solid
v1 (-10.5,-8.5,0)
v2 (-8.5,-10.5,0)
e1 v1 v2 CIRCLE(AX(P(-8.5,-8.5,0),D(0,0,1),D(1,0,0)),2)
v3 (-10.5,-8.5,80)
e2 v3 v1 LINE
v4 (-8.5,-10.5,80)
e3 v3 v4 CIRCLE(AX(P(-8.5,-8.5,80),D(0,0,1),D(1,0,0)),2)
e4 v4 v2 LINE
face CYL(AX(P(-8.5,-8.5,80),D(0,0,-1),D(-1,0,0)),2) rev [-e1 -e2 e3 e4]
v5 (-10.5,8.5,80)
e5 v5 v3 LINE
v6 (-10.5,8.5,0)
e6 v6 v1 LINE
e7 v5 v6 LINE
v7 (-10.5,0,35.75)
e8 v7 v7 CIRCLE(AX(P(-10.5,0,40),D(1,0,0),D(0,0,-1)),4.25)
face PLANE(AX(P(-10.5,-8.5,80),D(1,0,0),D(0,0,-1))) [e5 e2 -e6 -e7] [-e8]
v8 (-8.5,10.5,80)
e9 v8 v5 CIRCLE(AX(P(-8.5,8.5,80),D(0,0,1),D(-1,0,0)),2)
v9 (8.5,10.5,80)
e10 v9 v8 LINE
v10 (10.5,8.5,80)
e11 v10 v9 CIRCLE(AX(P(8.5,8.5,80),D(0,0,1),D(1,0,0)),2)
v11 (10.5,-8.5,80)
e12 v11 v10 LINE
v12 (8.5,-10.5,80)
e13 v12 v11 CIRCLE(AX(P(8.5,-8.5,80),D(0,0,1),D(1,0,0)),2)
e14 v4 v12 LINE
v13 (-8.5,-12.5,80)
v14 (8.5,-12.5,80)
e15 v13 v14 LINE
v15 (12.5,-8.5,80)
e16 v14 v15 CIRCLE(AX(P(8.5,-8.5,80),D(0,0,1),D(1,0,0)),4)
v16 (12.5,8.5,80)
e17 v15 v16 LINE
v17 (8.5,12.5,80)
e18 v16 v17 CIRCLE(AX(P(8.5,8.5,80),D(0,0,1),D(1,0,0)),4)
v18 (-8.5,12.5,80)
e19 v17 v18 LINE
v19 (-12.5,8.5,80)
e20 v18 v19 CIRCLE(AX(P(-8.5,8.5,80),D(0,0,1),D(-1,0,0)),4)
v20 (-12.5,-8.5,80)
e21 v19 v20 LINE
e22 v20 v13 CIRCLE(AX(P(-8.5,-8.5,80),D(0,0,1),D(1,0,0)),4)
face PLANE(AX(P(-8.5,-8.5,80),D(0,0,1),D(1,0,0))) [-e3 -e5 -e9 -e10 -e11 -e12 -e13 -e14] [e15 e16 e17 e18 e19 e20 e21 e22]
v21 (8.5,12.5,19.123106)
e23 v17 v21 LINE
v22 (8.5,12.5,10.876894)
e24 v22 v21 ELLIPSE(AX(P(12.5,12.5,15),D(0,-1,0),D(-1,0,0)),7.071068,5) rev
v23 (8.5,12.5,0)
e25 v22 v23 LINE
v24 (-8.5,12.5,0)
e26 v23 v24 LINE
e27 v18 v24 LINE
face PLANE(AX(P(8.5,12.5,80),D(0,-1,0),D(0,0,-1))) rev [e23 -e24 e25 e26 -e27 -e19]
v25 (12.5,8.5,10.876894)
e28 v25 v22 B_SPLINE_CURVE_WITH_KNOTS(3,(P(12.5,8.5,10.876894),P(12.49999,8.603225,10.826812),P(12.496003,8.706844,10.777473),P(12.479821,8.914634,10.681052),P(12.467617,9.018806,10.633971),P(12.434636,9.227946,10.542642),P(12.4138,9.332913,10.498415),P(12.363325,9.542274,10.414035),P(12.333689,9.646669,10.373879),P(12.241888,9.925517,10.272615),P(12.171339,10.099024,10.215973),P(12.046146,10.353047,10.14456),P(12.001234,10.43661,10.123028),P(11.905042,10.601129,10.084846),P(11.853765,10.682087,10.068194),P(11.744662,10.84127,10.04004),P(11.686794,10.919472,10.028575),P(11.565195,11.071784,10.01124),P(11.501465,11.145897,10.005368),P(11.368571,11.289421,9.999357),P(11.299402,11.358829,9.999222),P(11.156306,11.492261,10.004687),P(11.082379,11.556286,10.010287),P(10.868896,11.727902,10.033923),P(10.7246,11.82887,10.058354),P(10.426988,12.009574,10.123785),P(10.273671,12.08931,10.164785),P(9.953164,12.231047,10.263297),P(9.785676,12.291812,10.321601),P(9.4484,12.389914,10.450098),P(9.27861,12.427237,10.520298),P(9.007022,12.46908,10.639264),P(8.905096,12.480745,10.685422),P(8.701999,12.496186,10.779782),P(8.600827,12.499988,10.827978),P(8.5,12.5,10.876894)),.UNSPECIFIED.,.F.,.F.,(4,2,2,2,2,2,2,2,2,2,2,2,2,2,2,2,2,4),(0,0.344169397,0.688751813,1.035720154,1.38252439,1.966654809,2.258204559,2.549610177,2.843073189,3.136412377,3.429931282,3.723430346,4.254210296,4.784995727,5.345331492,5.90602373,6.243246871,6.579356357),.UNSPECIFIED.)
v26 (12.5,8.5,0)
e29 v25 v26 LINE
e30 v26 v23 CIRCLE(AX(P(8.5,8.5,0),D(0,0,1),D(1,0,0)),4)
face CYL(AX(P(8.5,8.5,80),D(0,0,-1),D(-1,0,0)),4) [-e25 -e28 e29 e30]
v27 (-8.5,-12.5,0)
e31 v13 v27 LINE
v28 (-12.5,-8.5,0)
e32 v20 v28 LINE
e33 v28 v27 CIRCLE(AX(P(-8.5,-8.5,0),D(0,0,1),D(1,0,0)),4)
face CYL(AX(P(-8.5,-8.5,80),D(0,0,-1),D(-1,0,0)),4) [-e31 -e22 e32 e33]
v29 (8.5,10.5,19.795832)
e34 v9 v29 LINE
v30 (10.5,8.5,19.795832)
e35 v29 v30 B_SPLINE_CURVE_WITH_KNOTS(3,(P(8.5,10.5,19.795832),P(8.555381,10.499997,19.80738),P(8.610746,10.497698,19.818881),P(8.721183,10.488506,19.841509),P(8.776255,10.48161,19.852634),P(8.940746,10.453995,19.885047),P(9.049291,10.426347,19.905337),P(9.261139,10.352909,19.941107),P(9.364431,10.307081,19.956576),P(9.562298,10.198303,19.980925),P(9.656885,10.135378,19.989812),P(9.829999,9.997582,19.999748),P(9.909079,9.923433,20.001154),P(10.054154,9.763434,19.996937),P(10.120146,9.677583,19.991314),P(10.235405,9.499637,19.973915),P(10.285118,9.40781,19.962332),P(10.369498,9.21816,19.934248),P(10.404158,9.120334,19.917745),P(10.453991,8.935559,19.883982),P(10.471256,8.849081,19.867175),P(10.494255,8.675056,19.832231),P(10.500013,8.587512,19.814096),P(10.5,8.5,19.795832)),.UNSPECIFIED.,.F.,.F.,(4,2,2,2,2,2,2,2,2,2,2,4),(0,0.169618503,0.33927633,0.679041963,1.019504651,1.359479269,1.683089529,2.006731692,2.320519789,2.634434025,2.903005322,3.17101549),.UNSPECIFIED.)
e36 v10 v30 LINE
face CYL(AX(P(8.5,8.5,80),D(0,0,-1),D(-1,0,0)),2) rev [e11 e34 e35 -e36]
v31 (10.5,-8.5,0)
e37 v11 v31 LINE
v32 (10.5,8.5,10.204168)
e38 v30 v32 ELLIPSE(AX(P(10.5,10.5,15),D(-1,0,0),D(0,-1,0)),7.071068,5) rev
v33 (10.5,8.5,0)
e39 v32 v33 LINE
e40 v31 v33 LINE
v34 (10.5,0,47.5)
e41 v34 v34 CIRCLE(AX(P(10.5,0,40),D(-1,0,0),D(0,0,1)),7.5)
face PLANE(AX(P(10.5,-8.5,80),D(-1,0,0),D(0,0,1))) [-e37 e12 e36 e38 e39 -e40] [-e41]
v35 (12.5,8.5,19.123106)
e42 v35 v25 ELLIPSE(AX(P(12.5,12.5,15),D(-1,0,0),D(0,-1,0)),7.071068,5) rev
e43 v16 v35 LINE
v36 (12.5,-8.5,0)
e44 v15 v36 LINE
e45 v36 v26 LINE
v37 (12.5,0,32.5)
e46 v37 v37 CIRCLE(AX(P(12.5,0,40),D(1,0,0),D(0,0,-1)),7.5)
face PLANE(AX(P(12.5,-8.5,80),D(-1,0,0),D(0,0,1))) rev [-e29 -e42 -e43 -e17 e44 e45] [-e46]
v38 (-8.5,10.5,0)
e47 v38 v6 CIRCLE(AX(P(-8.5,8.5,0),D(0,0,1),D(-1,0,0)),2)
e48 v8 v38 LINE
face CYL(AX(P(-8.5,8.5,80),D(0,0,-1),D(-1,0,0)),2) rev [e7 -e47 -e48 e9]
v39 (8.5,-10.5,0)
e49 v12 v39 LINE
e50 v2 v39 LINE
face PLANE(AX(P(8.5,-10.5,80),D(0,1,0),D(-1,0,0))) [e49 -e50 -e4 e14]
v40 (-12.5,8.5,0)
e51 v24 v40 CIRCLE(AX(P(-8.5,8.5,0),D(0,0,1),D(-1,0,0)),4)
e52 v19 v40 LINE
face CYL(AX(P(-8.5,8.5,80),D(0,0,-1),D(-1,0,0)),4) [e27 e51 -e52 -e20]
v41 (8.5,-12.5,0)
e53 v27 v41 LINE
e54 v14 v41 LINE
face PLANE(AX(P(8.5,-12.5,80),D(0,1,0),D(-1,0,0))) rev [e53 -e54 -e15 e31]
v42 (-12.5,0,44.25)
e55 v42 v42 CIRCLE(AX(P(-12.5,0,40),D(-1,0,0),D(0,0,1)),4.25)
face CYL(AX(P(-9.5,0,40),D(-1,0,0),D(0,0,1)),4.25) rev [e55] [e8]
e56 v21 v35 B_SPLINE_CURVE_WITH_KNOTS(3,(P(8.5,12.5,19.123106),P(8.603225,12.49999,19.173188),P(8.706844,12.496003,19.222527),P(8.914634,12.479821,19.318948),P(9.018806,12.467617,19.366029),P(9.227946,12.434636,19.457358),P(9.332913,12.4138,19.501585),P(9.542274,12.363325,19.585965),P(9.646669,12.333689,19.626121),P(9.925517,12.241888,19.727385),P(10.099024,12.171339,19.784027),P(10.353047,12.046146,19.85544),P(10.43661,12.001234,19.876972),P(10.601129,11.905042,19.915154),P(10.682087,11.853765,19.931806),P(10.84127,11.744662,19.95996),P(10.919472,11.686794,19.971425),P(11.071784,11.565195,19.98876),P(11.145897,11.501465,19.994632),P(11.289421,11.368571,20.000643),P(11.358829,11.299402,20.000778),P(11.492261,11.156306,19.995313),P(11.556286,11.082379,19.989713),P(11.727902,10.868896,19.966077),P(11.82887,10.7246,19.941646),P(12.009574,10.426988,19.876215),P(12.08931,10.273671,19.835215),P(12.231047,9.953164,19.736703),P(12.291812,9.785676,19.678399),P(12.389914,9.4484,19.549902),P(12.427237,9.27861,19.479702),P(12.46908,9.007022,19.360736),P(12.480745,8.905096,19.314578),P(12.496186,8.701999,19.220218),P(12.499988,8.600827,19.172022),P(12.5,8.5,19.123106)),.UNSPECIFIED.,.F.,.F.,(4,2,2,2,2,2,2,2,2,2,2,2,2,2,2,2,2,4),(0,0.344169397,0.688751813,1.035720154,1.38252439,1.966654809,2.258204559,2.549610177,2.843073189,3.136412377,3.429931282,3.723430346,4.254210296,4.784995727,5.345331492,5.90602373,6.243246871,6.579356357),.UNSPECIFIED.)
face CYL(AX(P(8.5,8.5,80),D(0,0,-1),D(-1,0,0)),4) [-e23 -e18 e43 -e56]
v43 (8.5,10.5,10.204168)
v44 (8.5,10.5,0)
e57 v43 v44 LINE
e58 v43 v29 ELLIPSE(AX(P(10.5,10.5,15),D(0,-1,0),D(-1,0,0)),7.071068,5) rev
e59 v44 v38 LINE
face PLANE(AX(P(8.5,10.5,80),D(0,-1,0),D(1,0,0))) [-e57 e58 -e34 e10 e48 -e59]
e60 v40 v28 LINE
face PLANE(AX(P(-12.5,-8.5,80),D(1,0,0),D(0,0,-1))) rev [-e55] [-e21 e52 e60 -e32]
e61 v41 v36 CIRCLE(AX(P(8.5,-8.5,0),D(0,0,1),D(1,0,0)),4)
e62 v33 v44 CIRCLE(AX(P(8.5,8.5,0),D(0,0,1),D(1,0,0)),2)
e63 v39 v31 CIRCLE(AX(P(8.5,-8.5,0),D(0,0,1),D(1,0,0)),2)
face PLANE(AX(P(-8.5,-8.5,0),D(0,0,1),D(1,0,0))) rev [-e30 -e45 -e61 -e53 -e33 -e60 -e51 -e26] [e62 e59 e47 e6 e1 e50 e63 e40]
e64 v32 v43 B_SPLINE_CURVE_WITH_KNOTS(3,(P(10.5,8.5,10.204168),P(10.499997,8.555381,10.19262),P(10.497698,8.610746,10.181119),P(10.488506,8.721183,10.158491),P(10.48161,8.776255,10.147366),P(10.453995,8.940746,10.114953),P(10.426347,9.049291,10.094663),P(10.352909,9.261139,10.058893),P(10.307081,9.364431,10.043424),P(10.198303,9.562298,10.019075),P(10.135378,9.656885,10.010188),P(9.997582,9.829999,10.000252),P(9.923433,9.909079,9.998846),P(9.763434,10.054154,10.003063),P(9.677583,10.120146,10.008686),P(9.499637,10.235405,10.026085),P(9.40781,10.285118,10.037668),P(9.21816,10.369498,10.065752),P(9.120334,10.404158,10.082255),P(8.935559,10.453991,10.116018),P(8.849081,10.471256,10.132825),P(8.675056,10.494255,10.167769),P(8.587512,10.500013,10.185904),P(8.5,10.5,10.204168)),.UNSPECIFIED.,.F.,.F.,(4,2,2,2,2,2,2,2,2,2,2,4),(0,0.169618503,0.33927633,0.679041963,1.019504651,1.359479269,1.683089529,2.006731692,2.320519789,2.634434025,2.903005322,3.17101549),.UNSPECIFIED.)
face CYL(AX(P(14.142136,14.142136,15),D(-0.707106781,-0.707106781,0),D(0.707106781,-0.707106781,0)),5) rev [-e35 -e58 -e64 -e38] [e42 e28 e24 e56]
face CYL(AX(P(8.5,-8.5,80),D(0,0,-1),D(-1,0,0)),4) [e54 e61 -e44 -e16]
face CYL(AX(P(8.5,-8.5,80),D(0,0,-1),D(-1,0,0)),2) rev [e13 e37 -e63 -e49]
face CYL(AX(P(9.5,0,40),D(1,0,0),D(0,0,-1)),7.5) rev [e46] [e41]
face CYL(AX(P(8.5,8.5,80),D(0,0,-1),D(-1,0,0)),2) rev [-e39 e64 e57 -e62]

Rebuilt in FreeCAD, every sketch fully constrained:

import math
import FreeCAD as App
import Part
import Sketcher

doc = App.newDocument("Part")
body = doc.addObject("PartDesign::Body", "Body")

# Sketch on XY plane
sketch1 = doc.addObject("Sketcher::SketchObject", "Sketch")
body.addObject(sketch1)
sketch1.AttachmentSupport = (doc.XY_Plane, [""])
sketch1.MapMode = "FlatFace"
sketch1.addGeometry(Part.LineSegment(App.Vector(-8.5, -12.5, 0), App.Vector(8.5, -12.5, 0)), False)
sketch1.addGeometry(Part.ArcOfCircle(Part.Circle(App.Vector(8.5, -8.5, 0), App.Vector(0, 0, 1), 4), math.radians(-90), math.radians(0)), False)
sketch1.addGeometry(Part.LineSegment(App.Vector(12.5, -8.5, 0), App.Vector(12.5, 8.5, 0)), False)
sketch1.addGeometry(Part.ArcOfCircle(Part.Circle(App.Vector(8.5, 8.5, 0), App.Vector(0, 0, 1), 4), math.radians(0), math.radians(90)), False)
sketch1.addGeometry(Part.LineSegment(App.Vector(8.5, 12.5, 0), App.Vector(-8.5, 12.5, 0)), False)
sketch1.addGeometry(Part.ArcOfCircle(Part.Circle(App.Vector(-8.5, 8.5, 0), App.Vector(0, 0, 1), 4), math.radians(90), math.radians(180)), False)
sketch1.addGeometry(Part.LineSegment(App.Vector(-12.5, 8.5, 0), App.Vector(-12.5, -8.5, 0)), False)
sketch1.addGeometry(Part.ArcOfCircle(Part.Circle(App.Vector(-8.5, -8.5, 0), App.Vector(0, 0, 1), 4), math.radians(180), math.radians(270)), False)
sketch1.addGeometry(Part.LineSegment(App.Vector(-10.5, -8.5, 0), App.Vector(-10.5, 8.5, 0)), False)
sketch1.addGeometry(Part.ArcOfCircle(Part.Circle(App.Vector(-8.5, 8.5, 0), App.Vector(0, 0, 1), 2), math.radians(90), math.radians(180)), False)
sketch1.addGeometry(Part.LineSegment(App.Vector(-8.5, 10.5, 0), App.Vector(8.5, 10.5, 0)), False)
sketch1.addGeometry(Part.ArcOfCircle(Part.Circle(App.Vector(8.5, 8.5, 0), App.Vector(0, 0, 1), 2), math.radians(0), math.radians(90)), False)
sketch1.addGeometry(Part.LineSegment(App.Vector(10.5, 8.5, 0), App.Vector(10.5, -8.5, 0)), False)
sketch1.addGeometry(Part.ArcOfCircle(Part.Circle(App.Vector(8.5, -8.5, 0), App.Vector(0, 0, 1), 2), math.radians(-90), math.radians(0)), False)
sketch1.addGeometry(Part.LineSegment(App.Vector(8.5, -10.5, 0), App.Vector(-8.5, -10.5, 0)), False)
sketch1.addGeometry(Part.ArcOfCircle(Part.Circle(App.Vector(-8.5, -8.5, 0), App.Vector(0, 0, 1), 2), math.radians(-180), math.radians(-90)), False)
sketch1.addConstraint(Sketcher.Constraint("Tangent", 0, 2, 1, 1))
sketch1.addConstraint(Sketcher.Constraint("Tangent", 1, 2, 2, 1))
sketch1.addConstraint(Sketcher.Constraint("Tangent", 2, 2, 3, 1))
sketch1.addConstraint(Sketcher.Constraint("Tangent", 3, 2, 4, 1))
sketch1.addConstraint(Sketcher.Constraint("Tangent", 4, 2, 5, 1))
sketch1.addConstraint(Sketcher.Constraint("Tangent", 5, 2, 6, 1))
sketch1.addConstraint(Sketcher.Constraint("Tangent", 6, 2, 7, 1))
sketch1.addConstraint(Sketcher.Constraint("Tangent", 7, 2, 0, 1))
sketch1.addConstraint(Sketcher.Constraint("Tangent", 8, 2, 9, 2))
sketch1.addConstraint(Sketcher.Constraint("Tangent", 9, 1, 10, 1))
sketch1.addConstraint(Sketcher.Constraint("Tangent", 10, 2, 11, 2))
sketch1.addConstraint(Sketcher.Constraint("Tangent", 11, 1, 12, 1))
sketch1.addConstraint(Sketcher.Constraint("Tangent", 12, 2, 13, 2))
sketch1.addConstraint(Sketcher.Constraint("Tangent", 13, 1, 14, 1))
sketch1.addConstraint(Sketcher.Constraint("Tangent", 14, 2, 15, 2))
sketch1.addConstraint(Sketcher.Constraint("Tangent", 15, 1, 8, 1))
sketch1.addConstraint(Sketcher.Constraint("Horizontal", 0))
sketch1.addConstraint(Sketcher.Constraint("Vertical", 2))
sketch1.addConstraint(Sketcher.Constraint("Horizontal", 4))
sketch1.addConstraint(Sketcher.Constraint("Vertical", 6))
sketch1.addConstraint(Sketcher.Constraint("Vertical", 8))
sketch1.addConstraint(Sketcher.Constraint("Horizontal", 10))
sketch1.addConstraint(Sketcher.Constraint("Vertical", 12))
sketch1.addConstraint(Sketcher.Constraint("Horizontal", 14))
sketch1.addConstraint(Sketcher.Constraint("Coincident", 9, 3, 5, 3))
sketch1.addConstraint(Sketcher.Constraint("Coincident", 11, 3, 3, 3))
sketch1.addConstraint(Sketcher.Constraint("Coincident", 13, 3, 1, 3))
sketch1.addConstraint(Sketcher.Constraint("Equal", 1, 3))
sketch1.addConstraint(Sketcher.Constraint("Equal", 3, 5))
sketch1.addConstraint(Sketcher.Constraint("Equal", 5, 7))
sketch1.addConstraint(Sketcher.Constraint("Equal", 13, 15))
sketch1.addConstraint(Sketcher.Constraint("Symmetric", 1, 3, 5, 3, -1, 1))
sketch1.addConstraint(Sketcher.Constraint("Equal", 14, 2))
sketch1.addConstraint(Sketcher.Constraint("Radius", 1, 4.0))
sketch1.addConstraint(Sketcher.Constraint("Radius", 9, 2.0))
sketch1.addConstraint(Sketcher.Constraint("DistanceX", 0, 1, 0, 2, 17.0))
pad1 = doc.addObject("PartDesign::Pad", "Pad")
body.addObject(pad1)
pad1.Profile = sketch1
pad1.Length = 80

# Sketch on YZ plane
sketch2 = doc.addObject("Sketcher::SketchObject", "Sketch001")
body.addObject(sketch2)
sketch2.AttachmentSupport = (doc.YZ_Plane, [""])
sketch2.MapMode = "FlatFace"
sketch2.AttachmentOffset = App.Placement(App.Vector(0, 0, 12.5), App.Rotation())
sketch2.addGeometry(Part.Circle(App.Vector(0, 40, 0), App.Vector(0, 0, 1), 7.5), False)
sketch2.addConstraint(Sketcher.Constraint("PointOnObject", 0, 3, -2))
sketch2.addConstraint(Sketcher.Constraint("Diameter", 0, 15.0))
sketch2.addConstraint(Sketcher.Constraint("DistanceY", -1, 1, 0, 3, 40.0))
pocket1 = doc.addObject("PartDesign::Pocket", "Pocket")
body.addObject(pocket1)
pocket1.Profile = sketch2
pocket1.Length = 3

# Sketch on YZ plane
sketch3 = doc.addObject("Sketcher::SketchObject", "Sketch002")
body.addObject(sketch3)
sketch3.AttachmentSupport = (doc.YZ_Plane, [""])
sketch3.MapMode = "FlatFace"
sketch3.AttachmentOffset = App.Placement(App.Vector(0, 0, -12.5), App.Rotation())
sketch3.addGeometry(Part.Circle(App.Vector(0, 40, 0), App.Vector(0, 0, 1), 4.25), False)
sketch3.addConstraint(Sketcher.Constraint("PointOnObject", 0, 3, -2))
sketch3.addConstraint(Sketcher.Constraint("Diameter", 0, 8.5))
sketch3.addConstraint(Sketcher.Constraint("DistanceY", -1, 1, 0, 3, 40.0))
pocket2 = doc.addObject("PartDesign::Pocket", "Pocket001")
body.addObject(pocket2)
pocket2.Profile = sketch3
pocket2.Length = 3
pocket2.Reversed = True

# Sketch on an angled plane
sketch4 = doc.addObject("Sketcher::SketchObject", "Sketch003")
body.addObject(sketch4)
sketch4.Placement = App.Placement(App.Vector(0, 0, 0), App.Rotation(App.Vector(0, 0, -1), App.Vector(-0.707106781, 0.707106781, 0), App.Vector(0.707106781, 0.707106781, 0), "ZXY"))
sketch4.addGeometry(Part.Circle(App.Vector(-15, 0, 0), App.Vector(0, 0, 1), 5), False)
sketch4.addConstraint(Sketcher.Constraint("PointOnObject", 0, 3, -1))
sketch4.addConstraint(Sketcher.Constraint("Diameter", 0, 10.0))
sketch4.addConstraint(Sketcher.Constraint("DistanceX", 0, 3, -1, 1, 15.0))
pocket3 = doc.addObject("PartDesign::Pocket", "Pocket002")
body.addObject(pocket3)
pocket3.Profile = sketch4
pocket3.Length = 20
pocket3.Reversed = True

doc.recompute()
